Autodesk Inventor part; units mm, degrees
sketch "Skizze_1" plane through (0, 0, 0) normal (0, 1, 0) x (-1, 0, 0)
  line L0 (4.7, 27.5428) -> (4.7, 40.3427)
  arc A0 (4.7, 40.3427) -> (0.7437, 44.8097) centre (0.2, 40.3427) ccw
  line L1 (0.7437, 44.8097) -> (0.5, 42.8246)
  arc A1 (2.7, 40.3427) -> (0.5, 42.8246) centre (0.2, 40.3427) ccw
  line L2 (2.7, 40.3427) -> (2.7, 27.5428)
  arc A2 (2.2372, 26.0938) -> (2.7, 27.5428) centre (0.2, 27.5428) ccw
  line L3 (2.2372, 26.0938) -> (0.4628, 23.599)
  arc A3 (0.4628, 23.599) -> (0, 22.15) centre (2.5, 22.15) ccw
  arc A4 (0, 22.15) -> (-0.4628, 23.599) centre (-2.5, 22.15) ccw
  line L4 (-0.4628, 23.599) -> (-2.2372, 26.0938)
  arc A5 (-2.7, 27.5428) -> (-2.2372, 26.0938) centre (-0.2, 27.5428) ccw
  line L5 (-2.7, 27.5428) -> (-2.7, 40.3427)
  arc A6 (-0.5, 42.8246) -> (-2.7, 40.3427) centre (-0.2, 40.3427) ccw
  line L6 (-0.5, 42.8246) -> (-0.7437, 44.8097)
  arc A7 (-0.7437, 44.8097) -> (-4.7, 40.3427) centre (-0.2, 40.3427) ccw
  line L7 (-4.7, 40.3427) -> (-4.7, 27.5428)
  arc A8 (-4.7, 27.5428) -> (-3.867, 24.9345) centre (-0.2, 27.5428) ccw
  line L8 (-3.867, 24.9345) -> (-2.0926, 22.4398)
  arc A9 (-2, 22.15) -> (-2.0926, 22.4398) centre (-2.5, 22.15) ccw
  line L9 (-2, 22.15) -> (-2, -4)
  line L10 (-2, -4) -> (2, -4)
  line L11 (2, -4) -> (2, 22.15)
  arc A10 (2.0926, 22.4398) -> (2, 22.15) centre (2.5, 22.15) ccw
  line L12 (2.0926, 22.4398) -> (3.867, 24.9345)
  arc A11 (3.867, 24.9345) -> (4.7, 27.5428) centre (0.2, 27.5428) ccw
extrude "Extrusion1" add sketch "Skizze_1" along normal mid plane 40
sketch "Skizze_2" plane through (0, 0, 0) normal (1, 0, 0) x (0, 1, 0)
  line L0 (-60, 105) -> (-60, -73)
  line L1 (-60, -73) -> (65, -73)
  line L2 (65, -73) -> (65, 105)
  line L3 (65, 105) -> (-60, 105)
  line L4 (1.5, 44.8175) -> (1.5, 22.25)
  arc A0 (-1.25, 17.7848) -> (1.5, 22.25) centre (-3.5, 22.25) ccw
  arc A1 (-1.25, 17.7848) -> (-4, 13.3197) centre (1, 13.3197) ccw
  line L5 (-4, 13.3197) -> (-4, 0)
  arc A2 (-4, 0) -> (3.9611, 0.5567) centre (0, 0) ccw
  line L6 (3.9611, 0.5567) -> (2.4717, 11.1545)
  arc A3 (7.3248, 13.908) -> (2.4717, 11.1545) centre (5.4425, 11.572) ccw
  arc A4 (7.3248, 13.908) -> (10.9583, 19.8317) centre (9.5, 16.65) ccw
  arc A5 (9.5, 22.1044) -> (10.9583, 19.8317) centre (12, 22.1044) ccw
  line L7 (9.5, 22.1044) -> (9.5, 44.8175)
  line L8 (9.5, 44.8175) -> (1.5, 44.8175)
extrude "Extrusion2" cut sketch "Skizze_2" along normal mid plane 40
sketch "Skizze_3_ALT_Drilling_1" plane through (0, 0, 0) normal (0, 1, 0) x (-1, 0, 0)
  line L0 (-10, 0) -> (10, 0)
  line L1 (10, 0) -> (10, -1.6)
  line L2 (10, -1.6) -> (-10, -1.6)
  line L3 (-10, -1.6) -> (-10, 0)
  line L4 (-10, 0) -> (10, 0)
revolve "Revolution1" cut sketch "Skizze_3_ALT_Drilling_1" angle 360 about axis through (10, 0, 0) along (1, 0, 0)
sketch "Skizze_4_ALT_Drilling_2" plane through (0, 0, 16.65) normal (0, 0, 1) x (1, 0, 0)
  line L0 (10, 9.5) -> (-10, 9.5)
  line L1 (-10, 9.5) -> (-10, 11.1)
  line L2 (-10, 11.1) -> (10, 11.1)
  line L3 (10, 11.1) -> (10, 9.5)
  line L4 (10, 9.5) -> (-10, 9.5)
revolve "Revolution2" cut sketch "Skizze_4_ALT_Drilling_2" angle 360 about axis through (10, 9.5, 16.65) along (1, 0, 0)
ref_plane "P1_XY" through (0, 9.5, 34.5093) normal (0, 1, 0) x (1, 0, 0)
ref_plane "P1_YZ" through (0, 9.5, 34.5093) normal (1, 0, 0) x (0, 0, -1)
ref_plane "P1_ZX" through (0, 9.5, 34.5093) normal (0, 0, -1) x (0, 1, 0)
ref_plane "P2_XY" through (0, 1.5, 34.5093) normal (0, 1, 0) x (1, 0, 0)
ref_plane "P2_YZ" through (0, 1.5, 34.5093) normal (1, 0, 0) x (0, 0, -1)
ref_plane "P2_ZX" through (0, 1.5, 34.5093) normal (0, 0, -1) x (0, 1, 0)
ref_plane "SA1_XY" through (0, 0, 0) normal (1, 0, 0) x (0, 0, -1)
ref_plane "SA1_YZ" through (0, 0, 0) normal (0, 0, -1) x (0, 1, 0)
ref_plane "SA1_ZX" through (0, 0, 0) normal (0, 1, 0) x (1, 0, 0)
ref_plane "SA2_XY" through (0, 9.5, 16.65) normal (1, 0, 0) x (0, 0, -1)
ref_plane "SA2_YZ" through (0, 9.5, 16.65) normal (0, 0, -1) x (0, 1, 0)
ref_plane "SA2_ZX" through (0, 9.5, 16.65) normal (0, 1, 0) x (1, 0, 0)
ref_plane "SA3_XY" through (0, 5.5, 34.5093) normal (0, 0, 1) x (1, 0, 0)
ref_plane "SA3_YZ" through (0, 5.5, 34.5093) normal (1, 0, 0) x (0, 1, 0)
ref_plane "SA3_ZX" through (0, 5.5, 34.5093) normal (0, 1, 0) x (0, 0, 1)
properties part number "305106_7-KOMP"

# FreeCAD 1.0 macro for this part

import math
import FreeCAD as App
import Part
import Sketcher

V = App.Vector
Q = App.Units.Quantity

doc = App.newDocument("Part")
body = doc.addObject("PartDesign::Body", "Body")

# Sketch on XZ plane
sketch1 = doc.addObject("Sketcher::SketchObject", "Sketch")
body.addObject(sketch1)
sketch1.AttachmentSupport = (doc.XZ_Plane, [""])
sketch1.MapMode = "FlatFace"
sketch1.addGeometry(Part.ArcOfCircle(Part.Circle(V(-0.2, 27.54, 0), V(0, 0, 1), 4.5), math.radians(180), math.radians(215)), False)
sketch1.addGeometry(Part.LineSegment(V(-4.7, 27.54, 0), V(-4.7, 40.34, 0)), False)
sketch1.addGeometry(Part.ArcOfCircle(Part.Circle(V(-0.2, 40.34, 0), V(0, 0, 1), 4.5), math.radians(97), math.radians(180)), False)
sketch1.addGeometry(Part.LineSegment(V(-0.74, 44.81, 0), V(-0.5, 42.82, 0)), False)
sketch1.addGeometry(Part.ArcOfCircle(Part.Circle(V(-0.2, 40.34, 0), V(0, 0, 1), 2.5), math.radians(97), math.radians(180)), False)
sketch1.addGeometry(Part.LineSegment(V(-2.7, 40.34, 0), V(-2.7, 27.54, 0)), False)
sketch1.addGeometry(Part.ArcOfCircle(Part.Circle(V(-0.2, 27.54, 0), V(0, 0, 1), 2.5), math.radians(180), math.radians(215)), False)
sketch1.addGeometry(Part.LineSegment(V(-2.24, 26.09, 0), V(-0.46, 23.6, 0)), False)
sketch1.addGeometry(Part.ArcOfCircle(Part.Circle(V(-2.5, 22.15, 0), V(0, 0, 1), 2.5), math.radians(0), math.radians(35)), False)
sketch1.addGeometry(Part.ArcOfCircle(Part.Circle(V(2.5, 22.15, 0), V(0, 0, 1), 2.5), math.radians(145), math.radians(180)), False)
sketch1.addGeometry(Part.LineSegment(V(0.46, 23.6, 0), V(2.24, 26.09, 0)), False)
sketch1.addGeometry(Part.ArcOfCircle(Part.Circle(V(0.2, 27.54, 0), V(0, 0, 1), 2.5), math.radians(-35), math.radians(0)), False)
sketch1.addGeometry(Part.LineSegment(V(2.7, 27.54, 0), V(2.7, 40.34, 0)), False)
sketch1.addGeometry(Part.ArcOfCircle(Part.Circle(V(0.2, 40.34, 0), V(0, 0, 1), 2.5), math.radians(0), math.radians(83)), False)
sketch1.addGeometry(Part.LineSegment(V(0.5, 42.82, 0), V(0.74, 44.81, 0)), False)
sketch1.addGeometry(Part.ArcOfCircle(Part.Circle(V(0.2, 40.34, 0), V(0, 0, 1), 4.5), math.radians(0), math.radians(83)), False)
sketch1.addGeometry(Part.LineSegment(V(4.7, 40.34, 0), V(4.7, 27.54, 0)), False)
sketch1.addGeometry(Part.ArcOfCircle(Part.Circle(V(0.2, 27.54, 0), V(0, 0, 1), 4.5), math.radians(-35), math.radians(0)), False)
sketch1.addGeometry(Part.LineSegment(V(3.87, 24.93, 0), V(2.09, 22.44, 0)), False)
sketch1.addGeometry(Part.ArcOfCircle(Part.Circle(V(2.5, 22.15, 0), V(0, 0, 1), 0.5), math.radians(145), math.radians(180)), False)
sketch1.addGeometry(Part.LineSegment(V(2, 22.15, 0), V(2, -4, 0)), False)
sketch1.addGeometry(Part.LineSegment(V(2, -4, 0), V(-2, -4, 0)), False)
sketch1.addGeometry(Part.LineSegment(V(-2, -4, 0), V(-2, 22.15, 0)), False)
sketch1.addGeometry(Part.ArcOfCircle(Part.Circle(V(-2.5, 22.15, 0), V(0, 0, 1), 0.5), math.radians(0), math.radians(35)), False)
sketch1.addGeometry(Part.LineSegment(V(-2.09, 22.44, 0), V(-3.87, 24.93, 0)), False)
sketch1.addConstraint(Sketcher.Constraint("Tangent", 0, 1, 1, 1))
sketch1.addConstraint(Sketcher.Constraint("Tangent", 1, 2, 2, 2))
sketch1.addConstraint(Sketcher.Constraint("Coincident", 2, 1, 3, 1))
sketch1.addConstraint(Sketcher.Constraint("Coincident", 3, 2, 4, 1))
sketch1.addConstraint(Sketcher.Constraint("Tangent", 4, 2, 5, 1))
sketch1.addConstraint(Sketcher.Constraint("Tangent", 5, 2, 6, 1))
sketch1.addConstraint(Sketcher.Constraint("Tangent", 6, 2, 7, 1))
sketch1.addConstraint(Sketcher.Constraint("Tangent", 7, 2, 8, 2))
sketch1.addConstraint(Sketcher.Constraint("Tangent", 8, 1, 9, 2))
sketch1.addConstraint(Sketcher.Constraint("Tangent", 9, 1, 10, 1))
sketch1.addConstraint(Sketcher.Constraint("Tangent", 10, 2, 11, 1))
sketch1.addConstraint(Sketcher.Constraint("Tangent", 11, 2, 12, 1))
sketch1.addConstraint(Sketcher.Constraint("Tangent", 12, 2, 13, 1))
sketch1.addConstraint(Sketcher.Constraint("Coincident", 13, 2, 14, 1))
sketch1.addConstraint(Sketcher.Constraint("Coincident", 14, 2, 15, 2))
sketch1.addConstraint(Sketcher.Constraint("Tangent", 15, 1, 16, 1))
sketch1.addConstraint(Sketcher.Constraint("Tangent", 16, 2, 17, 2))
sketch1.addConstraint(Sketcher.Constraint("Tangent", 17, 1, 18, 1))
sketch1.addConstraint(Sketcher.Constraint("Tangent", 18, 2, 19, 1))
sketch1.addConstraint(Sketcher.Constraint("Tangent", 19, 2, 20, 1))
sketch1.addConstraint(Sketcher.Constraint("Coincident", 20, 2, 21, 1))
sketch1.addConstraint(Sketcher.Constraint("Coincident", 21, 2, 22, 1))
sketch1.addConstraint(Sketcher.Constraint("Tangent", 22, 2, 23, 1))
sketch1.addConstraint(Sketcher.Constraint("Tangent", 23, 2, 24, 1))
sketch1.addConstraint(Sketcher.Constraint("Tangent", 24, 2, 0, 2))
sketch1.addConstraint(Sketcher.Constraint("Vertical", 1))
sketch1.addConstraint(Sketcher.Constraint("Vertical", 5))
sketch1.addConstraint(Sketcher.Constraint("Vertical", 12))
sketch1.addConstraint(Sketcher.Constraint("Vertical", 16))
sketch1.addConstraint(Sketcher.Constraint("Vertical", 20))
sketch1.addConstraint(Sketcher.Constraint("Horizontal", 21))
sketch1.addConstraint(Sketcher.Constraint("Vertical", 22))
sketch1.addConstraint(Sketcher.Constraint("Coincident", 4, 3, 2, 3))
sketch1.addConstraint(Sketcher.Constraint("Coincident", 6, 3, 0, 3))
sketch1.addConstraint(Sketcher.Constraint("Coincident", 15, 3, 13, 3))
sketch1.addConstraint(Sketcher.Constraint("Coincident", 17, 3, 11, 3))
sketch1.addConstraint(Sketcher.Constraint("Coincident", 19, 3, 9, 3))
sketch1.addConstraint(Sketcher.Constraint("Coincident", 23, 3, 8, 3))
sketch1.addConstraint(Sketcher.Constraint("Equal", 0, 2))
sketch1.addConstraint(Sketcher.Constraint("Equal", 6, 8))
sketch1.addConstraint(Sketcher.Constraint("Equal", 8, 9))
sketch1.addConstraint(Sketcher.Constraint("Equal", 9, 11))
sketch1.addConstraint(Sketcher.Constraint("Equal", 11, 13))
sketch1.addConstraint(Sketcher.Constraint("Equal", 2, 15))
sketch1.addConstraint(Sketcher.Constraint("Equal", 19, 23))
sketch1.addConstraint(Sketcher.Constraint("Symmetric", 8, 3, 9, 3, -2))
sketch1.addConstraint(Sketcher.Constraint("Symmetric", 0, 3, 11, 3, -2))
sketch1.addConstraint(Sketcher.Constraint("Symmetric", 3, 2, 13, 2, -2))
sketch1.addConstraint(Sketcher.Constraint("Parallel", 10, 18))
sketch1.addConstraint(Sketcher.Constraint("Horizontal", 2, 1, 14, 2))
sketch1.addConstraint(Sketcher.Constraint("Radius", 0, Q("4.5 mm")))
sketch1.addConstraint(Sketcher.Constraint("Radius", 4, Q("2.5 mm")))
sketch1.addConstraint(Sketcher.Constraint("Angle", 3, Q("-83.0011 deg")))
sketch1.addConstraint(Sketcher.Constraint("DistanceY", 1, 1, 1, 2, Q("12.8 mm")))
sketch1.addConstraint(Sketcher.Constraint("DistanceY", 20, 2, -1, 1, Q("4 mm")))
sketch1.addConstraint(Sketcher.Constraint("DistanceX", 3, 2, 13, 2, Q("1 mm")))
sketch1.addConstraint(Sketcher.Constraint("DistanceY", 20, 2, 20, 1, Q("26.15 mm")))
sketch1.addConstraint(Sketcher.Constraint("DistanceX", 0, 3, -1, 1, Q("0.2 mm")))
sketch1.addConstraint(Sketcher.Constraint("DistanceY", -1, 1, 7, 2, Q("23.599 mm")))
pad1 = doc.addObject("PartDesign::Pad", "Pad")
body.addObject(pad1)
pad1.Profile = sketch1
pad1.Length = 40
pad1.Midplane = True

# Sketch on YZ plane
sketch2 = doc.addObject("Sketcher::SketchObject", "Sketch001")
body.addObject(sketch2)
sketch2.AttachmentSupport = (doc.YZ_Plane, [""])
sketch2.MapMode = "FlatFace"
sketch2.addGeometry(Part.LineSegment(V(65, 105, 0), V(-60, 105, 0)), False)
sketch2.addGeometry(Part.LineSegment(V(-60, 105, 0), V(-60, -73, 0)), False)
sketch2.addGeometry(Part.LineSegment(V(-60, -73, 0), V(65, -73, 0)), False)
sketch2.addGeometry(Part.LineSegment(V(65, -73, 0), V(65, 105, 0)), False)
sketch2.addGeometry(Part.LineSegment(V(1.5, 22.25, 0), V(1.5, 44.8175, 0)), False)
sketch2.addGeometry(Part.LineSegment(V(1.5, 44.8175, 0), V(9.5, 44.8175, 0)), False)
sketch2.addGeometry(Part.LineSegment(V(9.5, 44.8175, 0), V(9.5, 22.1044, 0)), False)
sketch2.addGeometry(Part.ArcOfCircle(Part.Circle(V(12, 22.1044, 0), V(0, 0, 1), 2.5), math.radians(180), math.radians(245.37548)), False)
sketch2.addGeometry(Part.ArcOfCircle(Part.Circle(V(9.5, 16.65, 0), V(0, 0, 1), 3.500008), math.radians(-128.424601), math.radians(65.376125)), False)
sketch2.addGeometry(Part.ArcOfCircle(Part.Circle(V(5.4425, 11.572, 0), V(0, 0, 1), 2.999992), math.radians(51.138859), math.radians(187.999646)), False)
sketch2.addGeometry(Part.LineSegment(V(2.4717, 11.1545, 0), V(3.9611, 0.5567, 0)), False)
sketch2.addGeometry(Part.ArcOfCircle(Part.Circle(V(0, 0, 0), V(0, 0, 1), 4), math.radians(180), math.radians(368.000052)), False)
sketch2.addGeometry(Part.LineSegment(V(-4, 0, 0), V(-4, 13.3197, 0)), False)
sketch2.addGeometry(Part.ArcOfCircle(Part.Circle(V(1, 13.3197, 0), V(0, 0, 1), 4.999962), math.radians(116.743905), math.radians(180)), False)
sketch2.addGeometry(Part.ArcOfCircle(Part.Circle(V(-3.5, 22.25, 0), V(0, 0, 1), 5.000051), math.radians(-63.256611), math.radians(0)), False)
sketch2.addConstraint(Sketcher.Constraint("Coincident", 0, 2, 1, 1))
sketch2.addConstraint(Sketcher.Constraint("Coincident", 1, 2, 2, 1))
sketch2.addConstraint(Sketcher.Constraint("Coincident", 2, 2, 3, 1))
sketch2.addConstraint(Sketcher.Constraint("Coincident", 3, 2, 0, 1))
sketch2.addConstraint(Sketcher.Constraint("Coincident", 4, 2, 5, 1))
sketch2.addConstraint(Sketcher.Constraint("Coincident", 5, 2, 6, 1))
sketch2.addConstraint(Sketcher.Constraint("Coincident", 6, 2, 7, 1))
sketch2.addConstraint(Sketcher.Constraint("Coincident", 7, 2, 8, 2))
sketch2.addConstraint(Sketcher.Constraint("Coincident", 8, 1, 9, 1))
sketch2.addConstraint(Sketcher.Constraint("Coincident", 9, 2, 10, 1))
sketch2.addConstraint(Sketcher.Constraint("Coincident", 10, 2, 11, 2))
sketch2.addConstraint(Sketcher.Constraint("Coincident", 11, 1, 12, 1))
sketch2.addConstraint(Sketcher.Constraint("Coincident", 12, 2, 13, 2))
sketch2.addConstraint(Sketcher.Constraint("Coincident", 13, 1, 14, 1))
sketch2.addConstraint(Sketcher.Constraint("Coincident", 14, 2, 4, 1))
sketch2.addConstraint(Sketcher.Constraint("Horizontal", 0))
sketch2.addConstraint(Sketcher.Constraint("Vertical", 1))
sketch2.addConstraint(Sketcher.Constraint("Horizontal", 2))
sketch2.addConstraint(Sketcher.Constraint("Vertical", 3))
sketch2.addConstraint(Sketcher.Constraint("Vertical", 4))
sketch2.addConstraint(Sketcher.Constraint("Horizontal", 5))
sketch2.addConstraint(Sketcher.Constraint("Vertical", 6))
sketch2.addConstraint(Sketcher.Constraint("Vertical", 12))
sketch2.addConstraint(Sketcher.Constraint("Coincident", 11, 3, -1, 1))
sketch2.addConstraint(Sketcher.Constraint("PointOnObject", 11, 1, -1))
sketch2.addConstraint(Sketcher.Constraint("Radius", 9, Q("3 mm")))
sketch2.addConstraint(Sketcher.Constraint("Radius", 11, Q("4 mm")))
sketch2.addConstraint(Sketcher.Constraint("Radius", 13, Q("5 mm")))
sketch2.addConstraint(Sketcher.Constraint("Radius", 14, Q("5 mm")))
sketch2.addConstraint(Sketcher.Constraint("Radius", 7, Q("2.5 mm")))
sketch2.addConstraint(Sketcher.Constraint("Radius", 8, Q("3.5 mm")))
sketch2.addConstraint(Sketcher.Constraint("DistanceX", 0, 2, 0, 1, Q("125 mm")))
sketch2.addConstraint(Sketcher.Constraint("DistanceX", 5, 1, 5, 2, Q("8 mm")))
sketch2.addConstraint(Sketcher.Constraint("DistanceY", 1, 2, 1, 1, Q("178 mm")))
sketch2.addConstraint(Sketcher.Constraint("DistanceX", -1, 1, 7, 3, Q("12 mm")))
sketch2.addConstraint(Sketcher.Constraint("DistanceX", 0, 2, -1, 1, Q("60 mm")))
sketch2.addConstraint(Sketcher.Constraint("DistanceY", -1, 1, 0, 2, Q("105 mm")))
sketch2.addConstraint(Sketcher.Constraint("DistanceX", 14, 3, 8, 3, Q("13 mm")))
sketch2.addConstraint(Sketcher.Constraint("DistanceY", 8, 3, 14, 3, Q("5.6 mm")))
sketch2.addConstraint(Sketcher.Constraint("DistanceY", 6, 2, 6, 1, Q("22.713 mm")))
sketch2.addConstraint(Sketcher.Constraint("DistanceY", -1, 1, 8, 3, Q("16.65 mm")))
sketch2.addConstraint(Sketcher.Constraint("DistanceX", 13, 1, -1, 1, Q("1.25 mm")))
sketch2.addConstraint(Sketcher.Constraint("DistanceY", -1, 1, 14, 2, Q("22.25 mm")))
sketch2.addConstraint(Sketcher.Constraint("Distance", 10, Q("10.702 mm")))
sketch2.addConstraint(Sketcher.Constraint("DistanceY", 4, 1, 4, 2, Q("22.5675 mm")))
sketch2.addConstraint(Sketcher.Constraint("DistanceY", 12, 1, 12, 2, Q("13.3197 mm")))
sketch2.addConstraint(Sketcher.Constraint("DistanceY", -1, 1, 9, 3, Q("11.572 mm")))
sketch2.addConstraint(Sketcher.Constraint("DistanceY", -1, 1, 8, 1, Q("13.908 mm")))
sketch2.addConstraint(Sketcher.Constraint("DistanceX", -1, 1, 10, 2, Q("3.961 mm")))
sketch2.addConstraint(Sketcher.Constraint("DistanceY", 13, 3, 7, 2, Q("6.512 mm")))
pocket1 = doc.addObject("PartDesign::Pocket", "Pocket")
body.addObject(pocket1)
pocket1.Profile = sketch2
pocket1.Length = 40
pocket1.Midplane = True

# Sketch on XZ plane
sketch3 = doc.addObject("Sketcher::SketchObject", "Sketch002")
body.addObject(sketch3)
sketch3.AttachmentSupport = (doc.XZ_Plane, [""])
sketch3.MapMode = "FlatFace"
sketch3.addGeometry(Part.LineSegment(V(-10, 0, 0), V(10, 0, 0)), False)
sketch3.addGeometry(Part.LineSegment(V(10, 0, 0), V(10, -1.6, 0)), False)
sketch3.addGeometry(Part.LineSegment(V(10, -1.6, 0), V(-10, -1.6, 0)), False)
sketch3.addGeometry(Part.LineSegment(V(-10, -1.6, 0), V(-10, 0, 0)), False)
sketch3.addConstraint(Sketcher.Constraint("Coincident", 0, 2, 1, 1))
sketch3.addConstraint(Sketcher.Constraint("Coincident", 1, 2, 2, 1))
sketch3.addConstraint(Sketcher.Constraint("Coincident", 2, 2, 3, 1))
sketch3.addConstraint(Sketcher.Constraint("Coincident", 3, 2, 0, 1))
sketch3.addConstraint(Sketcher.Constraint("Horizontal", 0))
sketch3.addConstraint(Sketcher.Constraint("Vertical", 1))
sketch3.addConstraint(Sketcher.Constraint("Horizontal", 2))
sketch3.addConstraint(Sketcher.Constraint("Vertical", 3))
sketch3.addConstraint(Sketcher.Constraint("Symmetric", 0, 2, 3, 2, -1, 1))
sketch3.addConstraint(Sketcher.Constraint("DistanceX", 0, 1, 0, 2, Q("20 mm")))
sketch3.addConstraint(Sketcher.Constraint("DistanceY", 1, 2, 1, 1, Q("1.6 mm")))
groove = doc.addObject("PartDesign::Groove", "Groove")
body.addObject(groove)
groove.Profile = sketch3
groove.ReferenceAxis = (sketch3, ["H_Axis"])
groove.Angle = 360

# Sketch on XY plane
sketch4 = doc.addObject("Sketcher::SketchObject", "Sketch003")
body.addObject(sketch4)
sketch4.AttachmentSupport = (doc.XY_Plane, [""])
sketch4.MapMode = "FlatFace"
sketch4.AttachmentOffset = App.Placement(V(0, 0, 16.65), App.Rotation())
sketch4.addGeometry(Part.LineSegment(V(-10, 9.5, 0), V(10, 9.5, 0)), False)
sketch4.addGeometry(Part.LineSegment(V(10, 9.5, 0), V(10, 11.1, 0)), False)
sketch4.addGeometry(Part.LineSegment(V(10, 11.1, 0), V(-10, 11.1, 0)), False)
sketch4.addGeometry(Part.LineSegment(V(-10, 11.1, 0), V(-10, 9.5, 0)), False)
sketch4.addGeometry(Part.LineSegment(V(-10, 9.5, 0), V(10, 9.5, 0)), True)  # axis
sketch4.addConstraint(Sketcher.Constraint("Coincident", 0, 2, 1, 1))
sketch4.addConstraint(Sketcher.Constraint("Coincident", 1, 2, 2, 1))
sketch4.addConstraint(Sketcher.Constraint("Coincident", 2, 2, 3, 1))
sketch4.addConstraint(Sketcher.Constraint("Coincident", 3, 2, 0, 1))
sketch4.addConstraint(Sketcher.Constraint("Horizontal", 0))
sketch4.addConstraint(Sketcher.Constraint("Vertical", 1))
sketch4.addConstraint(Sketcher.Constraint("Horizontal", 2))
sketch4.addConstraint(Sketcher.Constraint("Vertical", 3))
sketch4.addConstraint(Sketcher.Constraint("Horizontal", 4))
sketch4.addConstraint(Sketcher.Constraint("Coincident", 4, 1, 3, 2))
sketch4.addConstraint(Sketcher.Constraint("Vertical", 1, 2, 4, 2))
sketch4.addConstraint(Sketcher.Constraint("DistanceX", 0, 1, 0, 2, Q("20 mm")))
sketch4.addConstraint(Sketcher.Constraint("DistanceY", 1, 1, 1, 2, Q("1.6 mm")))
sketch4.addConstraint(Sketcher.Constraint("DistanceX", -1, 1, 0, 2, Q("10 mm")))
sketch4.addConstraint(Sketcher.Constraint("DistanceY", -1, 1, 0, 2, Q("9.5 mm")))
groove2 = doc.addObject("PartDesign::Groove", "Groove001")
body.addObject(groove2)
groove2.Profile = sketch4
groove2.ReferenceAxis = (sketch4, ["Axis0"])
groove2.Angle = 360

doc.recompute()
